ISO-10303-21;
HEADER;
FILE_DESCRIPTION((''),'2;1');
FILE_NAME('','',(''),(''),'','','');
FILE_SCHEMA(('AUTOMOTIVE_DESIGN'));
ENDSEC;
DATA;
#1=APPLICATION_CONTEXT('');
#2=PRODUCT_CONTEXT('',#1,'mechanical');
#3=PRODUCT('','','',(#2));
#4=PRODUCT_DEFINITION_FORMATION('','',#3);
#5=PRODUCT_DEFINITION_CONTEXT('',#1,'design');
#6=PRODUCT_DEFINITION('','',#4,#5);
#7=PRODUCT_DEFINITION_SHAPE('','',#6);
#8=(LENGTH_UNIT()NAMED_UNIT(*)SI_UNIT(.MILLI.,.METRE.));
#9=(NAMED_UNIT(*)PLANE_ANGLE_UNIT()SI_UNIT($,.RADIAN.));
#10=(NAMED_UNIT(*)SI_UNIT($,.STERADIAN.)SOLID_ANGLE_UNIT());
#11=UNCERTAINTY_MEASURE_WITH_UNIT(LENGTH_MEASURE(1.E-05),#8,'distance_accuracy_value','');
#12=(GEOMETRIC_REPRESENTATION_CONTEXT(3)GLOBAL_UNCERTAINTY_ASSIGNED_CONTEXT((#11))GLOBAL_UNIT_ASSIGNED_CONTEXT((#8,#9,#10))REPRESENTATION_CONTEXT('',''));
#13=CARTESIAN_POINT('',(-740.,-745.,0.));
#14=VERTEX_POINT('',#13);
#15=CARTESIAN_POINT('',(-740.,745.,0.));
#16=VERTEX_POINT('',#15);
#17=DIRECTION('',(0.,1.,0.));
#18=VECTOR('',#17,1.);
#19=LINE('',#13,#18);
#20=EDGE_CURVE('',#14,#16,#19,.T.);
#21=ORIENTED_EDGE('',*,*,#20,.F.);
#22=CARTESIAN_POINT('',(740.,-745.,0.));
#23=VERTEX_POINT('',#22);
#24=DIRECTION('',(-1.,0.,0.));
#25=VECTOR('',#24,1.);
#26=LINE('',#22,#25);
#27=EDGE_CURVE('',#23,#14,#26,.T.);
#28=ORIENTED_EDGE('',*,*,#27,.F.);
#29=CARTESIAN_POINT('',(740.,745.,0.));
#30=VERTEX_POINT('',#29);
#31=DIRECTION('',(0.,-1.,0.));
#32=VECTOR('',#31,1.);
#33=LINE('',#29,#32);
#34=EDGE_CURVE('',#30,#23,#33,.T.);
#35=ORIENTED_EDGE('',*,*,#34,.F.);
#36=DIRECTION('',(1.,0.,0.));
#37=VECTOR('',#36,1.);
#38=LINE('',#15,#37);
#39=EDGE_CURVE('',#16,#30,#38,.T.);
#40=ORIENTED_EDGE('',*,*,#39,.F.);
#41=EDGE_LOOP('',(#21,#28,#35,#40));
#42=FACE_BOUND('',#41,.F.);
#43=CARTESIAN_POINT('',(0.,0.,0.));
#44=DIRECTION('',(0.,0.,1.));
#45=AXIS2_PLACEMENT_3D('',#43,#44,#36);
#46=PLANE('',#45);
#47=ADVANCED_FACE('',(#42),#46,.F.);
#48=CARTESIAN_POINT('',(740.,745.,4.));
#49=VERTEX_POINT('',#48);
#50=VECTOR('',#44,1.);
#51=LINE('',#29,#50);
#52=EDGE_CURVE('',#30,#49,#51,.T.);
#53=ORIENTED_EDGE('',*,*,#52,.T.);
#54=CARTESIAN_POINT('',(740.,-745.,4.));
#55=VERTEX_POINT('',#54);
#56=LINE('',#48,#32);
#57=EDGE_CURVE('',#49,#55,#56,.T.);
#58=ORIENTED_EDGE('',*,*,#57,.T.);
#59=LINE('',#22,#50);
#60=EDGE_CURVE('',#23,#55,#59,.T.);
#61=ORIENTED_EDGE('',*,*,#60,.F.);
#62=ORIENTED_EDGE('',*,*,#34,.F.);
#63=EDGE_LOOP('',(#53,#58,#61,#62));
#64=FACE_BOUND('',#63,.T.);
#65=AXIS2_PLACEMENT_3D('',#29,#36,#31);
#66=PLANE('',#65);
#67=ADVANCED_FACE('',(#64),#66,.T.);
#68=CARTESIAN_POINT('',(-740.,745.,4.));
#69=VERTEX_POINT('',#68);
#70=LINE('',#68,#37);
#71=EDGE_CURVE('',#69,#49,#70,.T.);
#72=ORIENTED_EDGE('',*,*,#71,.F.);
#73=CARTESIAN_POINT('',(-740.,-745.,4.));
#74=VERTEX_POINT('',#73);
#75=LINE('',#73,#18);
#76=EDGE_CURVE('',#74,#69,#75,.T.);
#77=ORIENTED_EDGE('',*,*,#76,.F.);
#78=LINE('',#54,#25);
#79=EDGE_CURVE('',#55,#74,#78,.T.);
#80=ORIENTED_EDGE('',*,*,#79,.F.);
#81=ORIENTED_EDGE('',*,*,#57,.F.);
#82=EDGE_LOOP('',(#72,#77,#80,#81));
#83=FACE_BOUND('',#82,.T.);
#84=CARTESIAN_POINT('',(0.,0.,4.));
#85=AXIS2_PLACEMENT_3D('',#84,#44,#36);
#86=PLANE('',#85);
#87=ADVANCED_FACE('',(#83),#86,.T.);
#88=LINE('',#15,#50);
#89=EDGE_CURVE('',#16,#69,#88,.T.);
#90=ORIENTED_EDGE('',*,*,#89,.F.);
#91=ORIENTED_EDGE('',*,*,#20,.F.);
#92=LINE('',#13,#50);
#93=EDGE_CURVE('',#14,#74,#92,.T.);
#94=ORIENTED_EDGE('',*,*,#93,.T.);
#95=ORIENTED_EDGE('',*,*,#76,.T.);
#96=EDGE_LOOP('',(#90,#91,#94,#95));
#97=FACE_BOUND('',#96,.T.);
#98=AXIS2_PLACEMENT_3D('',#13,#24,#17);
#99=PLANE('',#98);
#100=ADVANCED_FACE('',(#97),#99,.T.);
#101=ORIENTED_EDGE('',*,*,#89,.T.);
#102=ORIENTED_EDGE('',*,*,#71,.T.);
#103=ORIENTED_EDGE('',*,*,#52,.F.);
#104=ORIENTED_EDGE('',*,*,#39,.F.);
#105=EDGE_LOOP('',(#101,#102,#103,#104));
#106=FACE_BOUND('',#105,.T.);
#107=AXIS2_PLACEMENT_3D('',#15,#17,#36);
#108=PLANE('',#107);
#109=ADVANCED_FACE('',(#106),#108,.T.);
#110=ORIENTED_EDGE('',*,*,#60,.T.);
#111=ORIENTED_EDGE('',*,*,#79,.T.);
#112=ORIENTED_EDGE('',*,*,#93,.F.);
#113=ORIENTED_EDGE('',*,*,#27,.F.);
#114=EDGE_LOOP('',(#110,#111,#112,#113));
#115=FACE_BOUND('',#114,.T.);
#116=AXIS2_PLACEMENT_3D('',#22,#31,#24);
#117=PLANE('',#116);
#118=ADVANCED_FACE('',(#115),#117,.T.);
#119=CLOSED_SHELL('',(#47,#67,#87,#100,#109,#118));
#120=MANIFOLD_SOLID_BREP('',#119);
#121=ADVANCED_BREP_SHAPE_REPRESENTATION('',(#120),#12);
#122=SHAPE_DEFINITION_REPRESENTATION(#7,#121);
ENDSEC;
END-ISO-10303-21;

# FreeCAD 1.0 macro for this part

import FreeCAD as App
import Part
import Sketcher


def add_polygon(sketch, points):
    """Adds a closed chain of lines whose ends are joined by coincident constraints."""
    first, n = sketch.GeometryCount, len(points)
    for a, b in zip(points, points[1:] + points[:1]):
        sketch.addGeometry(Part.LineSegment(App.Vector(*a, 0), App.Vector(*b, 0)), False)
    for i in range(n):
        sketch.addConstraint(Sketcher.Constraint("Coincident", first + i, 2, first + (i + 1) % n, 1))

doc = App.newDocument("Part")
body = doc.addObject("PartDesign::Body", "Body")

# Sketch on XY plane
sketch1 = body.newObject("Sketcher::SketchObject", "Sketch")
sketch1.AttachmentSupport = (doc.getObject("XY_Plane"), [""])
sketch1.MapMode = "FlatFace"
add_polygon(sketch1, [(-740, -745), (740, -745), (740, 745), (-740, 745)])  # lines 0-3
sketch1.addConstraint([
    Sketcher.Constraint("Horizontal", 0),
    Sketcher.Constraint("Vertical", 1),
    Sketcher.Constraint("Horizontal", 2),
    Sketcher.Constraint("Vertical", 3),
    Sketcher.Constraint("Symmetric", 0, 2, 2, 2, -1, 1),
    Sketcher.Constraint("DistanceX", 0, 1, 0, 2, 1480.0),
    Sketcher.Constraint("DistanceY", 1, 1, 1, 2, 1490.0),
])
pad1 = body.newObject("PartDesign::Pad", "Pad")
pad1.Profile = sketch1
pad1.Length = 4

doc.recompute()
